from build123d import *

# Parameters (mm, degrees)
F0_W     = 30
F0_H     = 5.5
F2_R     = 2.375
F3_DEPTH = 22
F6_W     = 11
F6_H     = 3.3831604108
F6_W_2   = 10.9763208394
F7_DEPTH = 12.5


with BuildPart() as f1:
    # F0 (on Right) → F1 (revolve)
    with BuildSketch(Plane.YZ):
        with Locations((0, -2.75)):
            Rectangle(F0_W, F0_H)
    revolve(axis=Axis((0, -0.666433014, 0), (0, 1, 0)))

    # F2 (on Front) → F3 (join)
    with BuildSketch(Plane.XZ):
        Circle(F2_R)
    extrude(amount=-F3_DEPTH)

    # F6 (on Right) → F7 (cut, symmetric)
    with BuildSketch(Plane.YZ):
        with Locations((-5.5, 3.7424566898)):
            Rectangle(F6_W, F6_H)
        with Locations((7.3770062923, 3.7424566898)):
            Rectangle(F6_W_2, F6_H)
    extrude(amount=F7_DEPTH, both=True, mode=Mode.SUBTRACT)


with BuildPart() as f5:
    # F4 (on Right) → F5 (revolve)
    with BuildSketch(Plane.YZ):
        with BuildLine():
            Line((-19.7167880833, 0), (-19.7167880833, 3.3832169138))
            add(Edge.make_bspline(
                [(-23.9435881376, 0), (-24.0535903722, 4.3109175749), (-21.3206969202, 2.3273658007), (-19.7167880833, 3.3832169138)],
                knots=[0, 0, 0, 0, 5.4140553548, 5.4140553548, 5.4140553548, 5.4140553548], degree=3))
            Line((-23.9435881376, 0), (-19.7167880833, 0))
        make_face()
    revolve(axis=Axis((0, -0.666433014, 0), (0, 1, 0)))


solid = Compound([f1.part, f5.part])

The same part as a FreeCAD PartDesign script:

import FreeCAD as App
import Part
import Sketcher

V = App.Vector
Q = App.Units.Quantity


def add_polygon(sketch, points):
    """Adds a closed chain of lines whose ends are joined by coincident constraints."""
    first, n = sketch.GeometryCount, len(points)
    for a, b in zip(points, points[1:] + points[:1]):
        sketch.addGeometry(Part.LineSegment(App.Vector(*a, 0), App.Vector(*b, 0)), False)
    for i in range(n):
        sketch.addConstraint(Sketcher.Constraint("Coincident", first + i, 2, first + (i + 1) % n, 1))

doc = App.newDocument("Part")
body = doc.addObject("PartDesign::Body", "Body")

# Sketch on YZ plane
sketch1 = body.newObject("Sketcher::SketchObject", "Sketch")
sketch1.AttachmentSupport = (doc.getObject("YZ_Plane"), [""])
sketch1.MapMode = "FlatFace"
add_polygon(sketch1, [(-15, 0), (-15, -6), (15, -6), (15, 0)])  # lines 0-3
sketch1.addConstraint([
    Sketcher.Constraint("Vertical", 0),
    Sketcher.Constraint("Horizontal", 1),
    Sketcher.Constraint("Vertical", 2),
    Sketcher.Constraint("Horizontal", 3),
    Sketcher.Constraint("Symmetric", 2, 2, 3, 2, -1, 1),
    Sketcher.Constraint("DistanceX", 1, 1, 1, 2, Q("30 mm")),
    Sketcher.Constraint("DistanceY", 0, 2, 0, 1, Q("5.5 mm")),
])
revolution = body.newObject("PartDesign::Revolution", "Revolution")
revolution.Profile = sketch1
revolution.ReferenceAxis = (sketch1, ["H_Axis"])
revolution.Angle = 360

# Sketch on XZ plane
sketch2 = body.newObject("Sketcher::SketchObject", "Sketch001")
sketch2.AttachmentSupport = (doc.getObject("XZ_Plane"), [""])
sketch2.MapMode = "FlatFace"
sketch2.addGeometry(Part.Circle(V(0, 0, 0), V(0, 0, 1), 2.4), False)
sketch2.addConstraint([
    Sketcher.Constraint("Coincident", 0, 3, -1, 1),
    Sketcher.Constraint("Diameter", 0, Q("4.75 mm")),
])
pad1 = body.newObject("PartDesign::Pad", "Pad")
pad1.Profile = sketch2
pad1.Length = 22
pad1.Reversed = True

# Sketch on YZ plane
sketch3 = body.newObject("Sketcher::SketchObject", "Sketch002")
sketch3.AttachmentSupport = (doc.getObject("YZ_Plane"), [""])
sketch3.MapMode = "FlatFace"
add_polygon(sketch3, [(-11, 5.4), (-11, 2.1), (0, 2.1), (0, 5.4)])  # lines 0-3
add_polygon(sketch3, [(1.9, 5.4), (1.9, 2.1), (12.9, 2.1), (12.9, 5.4)])  # lines 4-7
sketch3.addConstraint([
    Sketcher.Constraint("Vertical", 0),
    Sketcher.Constraint("Horizontal", 1),
    Sketcher.Constraint("Vertical", 2),
    Sketcher.Constraint("Horizontal", 3),
    Sketcher.Constraint("Vertical", 4),
    Sketcher.Constraint("Horizontal", 5),
    Sketcher.Constraint("Vertical", 6),
    Sketcher.Constraint("Horizontal", 7),
    Sketcher.Constraint("PointOnObject", 1, 2, -2),
    Sketcher.Constraint("Horizontal", 1, 2, 4, 2),
    Sketcher.Constraint("Horizontal", 3, 2, 6, 2),
    Sketcher.Constraint("DistanceX", 1, 1, 1, 2, Q("11 mm")),
    Sketcher.Constraint("DistanceX", 5, 1, 5, 2, Q("10.976321 mm")),
    Sketcher.Constraint("DistanceY", 0, 2, 0, 1, Q("3.38316 mm")),
    Sketcher.Constraint("DistanceY", -1, 1, 0, 2, Q("2.050876 mm")),
    Sketcher.Constraint("DistanceX", -1, 1, 4, 2, Q("1.888846 mm")),
])
pocket1 = body.newObject("PartDesign::Pocket", "Pocket")
pocket1.Profile = sketch3
pocket1.Length = 25
pocket1.Midplane = True
body2 = doc.addObject("PartDesign::Body", "Body001")

# Sketch on YZ plane
sketch4 = body2.newObject("Sketcher::SketchObject", "Sketch003")
sketch4.AttachmentSupport = (doc.getObject("YZ_Plane001"), [""])
sketch4.MapMode = "FlatFace"
sketch4.addGeometry([
    Part.LineSegment(V(-19.716788, 0, 0), V(-19.716788, 3.383217, 0)),
    Part.BSplineCurve([V(-23.943588, 0, 0), V(-24.05359, 4.310918, 0), V(-21.320697, 2.327366, 0), V(-19.716788, 3.383217, 0)], [4, 4], [0, 5.414055355], False, 3, [1, 1, 1, 1], False),
    Part.LineSegment(V(-23.943588, 0, 0), V(-19.716788, 0, 0)),
], False)
sketch4.addConstraint([
    Sketcher.Constraint("Block", 1),
    Sketcher.Constraint("Coincident", 0, 2, 1, 2),
    Sketcher.Constraint("Coincident", 1, 1, 2, 1),
    Sketcher.Constraint("Coincident", 2, 2, 0, 1),
    Sketcher.Constraint("Vertical", 0),
    Sketcher.Constraint("Horizontal", 2),
])
revolution2 = body2.newObject("PartDesign::Revolution", "Revolution001")
revolution2.Profile = sketch4
revolution2.ReferenceAxis = (sketch4, ["H_Axis"])
revolution2.Angle = 360

doc.recompute()
